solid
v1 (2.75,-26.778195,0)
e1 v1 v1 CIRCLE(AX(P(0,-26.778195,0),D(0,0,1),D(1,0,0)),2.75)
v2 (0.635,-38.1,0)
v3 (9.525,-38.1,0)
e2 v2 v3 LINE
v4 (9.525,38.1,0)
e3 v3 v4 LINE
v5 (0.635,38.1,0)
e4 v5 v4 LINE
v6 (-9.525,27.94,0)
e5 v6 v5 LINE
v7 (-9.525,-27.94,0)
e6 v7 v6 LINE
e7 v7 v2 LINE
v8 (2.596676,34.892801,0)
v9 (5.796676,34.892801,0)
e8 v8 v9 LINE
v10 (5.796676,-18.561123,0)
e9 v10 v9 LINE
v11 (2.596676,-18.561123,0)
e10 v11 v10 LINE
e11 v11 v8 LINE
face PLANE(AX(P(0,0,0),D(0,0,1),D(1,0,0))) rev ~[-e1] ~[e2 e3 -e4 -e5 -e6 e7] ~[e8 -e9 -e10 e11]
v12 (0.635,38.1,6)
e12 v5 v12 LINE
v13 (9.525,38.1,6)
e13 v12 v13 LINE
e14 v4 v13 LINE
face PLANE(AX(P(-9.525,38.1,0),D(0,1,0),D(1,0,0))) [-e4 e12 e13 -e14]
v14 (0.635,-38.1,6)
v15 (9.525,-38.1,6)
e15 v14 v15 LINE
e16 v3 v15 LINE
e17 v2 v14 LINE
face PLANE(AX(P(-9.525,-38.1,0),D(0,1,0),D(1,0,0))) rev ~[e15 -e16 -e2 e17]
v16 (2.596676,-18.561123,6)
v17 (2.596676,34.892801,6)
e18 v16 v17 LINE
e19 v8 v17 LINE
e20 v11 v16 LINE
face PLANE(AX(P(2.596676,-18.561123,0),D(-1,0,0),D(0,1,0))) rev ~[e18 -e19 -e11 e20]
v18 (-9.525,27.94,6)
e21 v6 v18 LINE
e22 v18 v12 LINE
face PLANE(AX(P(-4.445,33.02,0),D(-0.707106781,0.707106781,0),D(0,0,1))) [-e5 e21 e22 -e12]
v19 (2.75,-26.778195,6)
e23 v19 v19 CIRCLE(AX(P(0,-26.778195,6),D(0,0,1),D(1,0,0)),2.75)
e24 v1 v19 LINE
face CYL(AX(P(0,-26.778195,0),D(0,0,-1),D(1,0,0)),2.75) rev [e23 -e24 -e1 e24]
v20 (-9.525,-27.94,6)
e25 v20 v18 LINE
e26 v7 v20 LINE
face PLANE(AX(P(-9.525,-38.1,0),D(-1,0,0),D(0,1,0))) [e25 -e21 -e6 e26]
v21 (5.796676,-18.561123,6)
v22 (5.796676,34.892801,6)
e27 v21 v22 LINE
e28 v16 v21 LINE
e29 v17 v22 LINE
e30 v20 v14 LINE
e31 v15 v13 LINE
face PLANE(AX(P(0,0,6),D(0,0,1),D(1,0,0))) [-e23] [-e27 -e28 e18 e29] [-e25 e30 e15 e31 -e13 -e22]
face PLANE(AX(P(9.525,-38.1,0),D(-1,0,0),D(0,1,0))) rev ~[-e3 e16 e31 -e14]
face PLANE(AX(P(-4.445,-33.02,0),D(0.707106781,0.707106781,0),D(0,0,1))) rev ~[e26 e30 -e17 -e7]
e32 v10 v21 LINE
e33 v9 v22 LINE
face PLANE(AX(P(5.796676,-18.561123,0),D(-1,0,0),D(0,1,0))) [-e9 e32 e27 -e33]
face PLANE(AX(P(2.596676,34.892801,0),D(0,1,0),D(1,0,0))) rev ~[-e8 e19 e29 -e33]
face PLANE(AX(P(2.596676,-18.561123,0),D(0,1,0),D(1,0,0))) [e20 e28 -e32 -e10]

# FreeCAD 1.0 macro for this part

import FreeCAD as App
import Part
import Sketcher
from FreeCAD import Vector


def edges_at(feature, points):
    """Names of the edges that pass closest to the given points."""
    edges = feature.Shape.Edges
    near = lambda p: min(range(len(edges)), key=lambda i: edges[i].distToShape(Part.Vertex(*p))[0])
    return sorted({f"Edge{near(p) + 1}" for p in points})


def add_polygon(sketch, points):
    """Adds a closed chain of lines whose ends are joined by coincident constraints."""
    first, n = sketch.GeometryCount, len(points)
    for a, b in zip(points, points[1:] + points[:1]):
        sketch.addGeometry(Part.LineSegment(App.Vector(*a, 0), App.Vector(*b, 0)), False)
    for i in range(n):
        sketch.addConstraint(Sketcher.Constraint("Coincident", first + i, 2, first + (i + 1) % n, 1))

doc = App.newDocument("Part")
params = doc.addObject("Spreadsheet::Sheet", "Params")
for row, (alias, value) in enumerate([
    ("sketch1_diameter", "5.5 mm"),
    ("sketch1_width", "3.2 mm"),
    ("sketch1_height", "76.2 mm"),
    ("sketch1_width2", "19.05 mm"),
    ("pad1_length", "6 mm"),
    ("chamfer_size", "10.16 mm"),
], start=1):
    params.set(f"A{row}", alias)
    params.set(f"B{row}", "=" + value)
    params.setAlias(f"B{row}", alias)

body = doc.addObject("PartDesign::Body", "Body")

# Sketch on XY plane
sketch1 = body.newObject("Sketcher::SketchObject", "Sketch")
sketch1.AttachmentSupport = (doc.getObject("XY_Plane"), [""])
sketch1.MapMode = "FlatFace"
add_polygon(sketch1, [(-9.525, 38.1), (-9.525, -38.1), (9.525, -38.1), (9.525, 38.1)])  # lines 0-3
sketch1.addGeometry(Part.Circle(Vector(0, -26.778195, 0), Vector(0, 0, 1), 2.75), False)  # 4
add_polygon(sketch1, [(5.796676, -18.561123), (2.596676, -18.561123), (2.596676, 34.892801), (5.796676, 34.892801)])  # lines 5-8
sketch1.addConstraint([
    Sketcher.Constraint("Vertical", 0),
    Sketcher.Constraint("Horizontal", 1),
    Sketcher.Constraint("Vertical", 2),
    Sketcher.Constraint("Horizontal", 3),
    Sketcher.Constraint("Horizontal", 5),
    Sketcher.Constraint("Vertical", 6),
    Sketcher.Constraint("Horizontal", 7),
    Sketcher.Constraint("Vertical", 8),
    Sketcher.Constraint("Symmetric", 0, 2, 2, 2, -1, 1),
    Sketcher.Constraint("PointOnObject", 4, 3, -2),
    Sketcher.Constraint("Diameter", 4, 5.5),
    Sketcher.Constraint("DistanceX", 5, 2, 5, 1, 3.2),
    Sketcher.Constraint("DistanceY", 0, 2, 0, 1, 76.2),
    Sketcher.Constraint("DistanceX", 1, 1, 1, 2, 19.05),
    Sketcher.Constraint("DistanceY", -1, 1, 6, 2, 34.892801),
    Sketcher.Constraint("DistanceY", 6, 1, 6, 2, 53.453924),
    Sketcher.Constraint("DistanceY", 4, 3, -1, 1, 26.778195),
    Sketcher.Constraint("DistanceX", -1, 1, 5, 2, 2.596676),
])
sketch1.setExpression("Constraints[18]", "Params.sketch1_diameter")
sketch1.setExpression("Constraints[19]", "Params.sketch1_width")
sketch1.setExpression("Constraints[20]", "Params.sketch1_height")
sketch1.setExpression("Constraints[21]", "Params.sketch1_width2")
pad1 = body.newObject("PartDesign::Pad", "Pad")
pad1.Profile = sketch1
pad1.setExpression("Length", "Params.pad1_length")
doc.recompute()

chamfer = body.newObject("PartDesign::Chamfer", "Chamfer")
chamfer.Base = (pad1, edges_at(pad1, [(-9.525, 38.1, 3), (-9.525, -38.1, 3)]))
chamfer.setExpression("Size", "Params.chamfer_size")

doc.recompute()
